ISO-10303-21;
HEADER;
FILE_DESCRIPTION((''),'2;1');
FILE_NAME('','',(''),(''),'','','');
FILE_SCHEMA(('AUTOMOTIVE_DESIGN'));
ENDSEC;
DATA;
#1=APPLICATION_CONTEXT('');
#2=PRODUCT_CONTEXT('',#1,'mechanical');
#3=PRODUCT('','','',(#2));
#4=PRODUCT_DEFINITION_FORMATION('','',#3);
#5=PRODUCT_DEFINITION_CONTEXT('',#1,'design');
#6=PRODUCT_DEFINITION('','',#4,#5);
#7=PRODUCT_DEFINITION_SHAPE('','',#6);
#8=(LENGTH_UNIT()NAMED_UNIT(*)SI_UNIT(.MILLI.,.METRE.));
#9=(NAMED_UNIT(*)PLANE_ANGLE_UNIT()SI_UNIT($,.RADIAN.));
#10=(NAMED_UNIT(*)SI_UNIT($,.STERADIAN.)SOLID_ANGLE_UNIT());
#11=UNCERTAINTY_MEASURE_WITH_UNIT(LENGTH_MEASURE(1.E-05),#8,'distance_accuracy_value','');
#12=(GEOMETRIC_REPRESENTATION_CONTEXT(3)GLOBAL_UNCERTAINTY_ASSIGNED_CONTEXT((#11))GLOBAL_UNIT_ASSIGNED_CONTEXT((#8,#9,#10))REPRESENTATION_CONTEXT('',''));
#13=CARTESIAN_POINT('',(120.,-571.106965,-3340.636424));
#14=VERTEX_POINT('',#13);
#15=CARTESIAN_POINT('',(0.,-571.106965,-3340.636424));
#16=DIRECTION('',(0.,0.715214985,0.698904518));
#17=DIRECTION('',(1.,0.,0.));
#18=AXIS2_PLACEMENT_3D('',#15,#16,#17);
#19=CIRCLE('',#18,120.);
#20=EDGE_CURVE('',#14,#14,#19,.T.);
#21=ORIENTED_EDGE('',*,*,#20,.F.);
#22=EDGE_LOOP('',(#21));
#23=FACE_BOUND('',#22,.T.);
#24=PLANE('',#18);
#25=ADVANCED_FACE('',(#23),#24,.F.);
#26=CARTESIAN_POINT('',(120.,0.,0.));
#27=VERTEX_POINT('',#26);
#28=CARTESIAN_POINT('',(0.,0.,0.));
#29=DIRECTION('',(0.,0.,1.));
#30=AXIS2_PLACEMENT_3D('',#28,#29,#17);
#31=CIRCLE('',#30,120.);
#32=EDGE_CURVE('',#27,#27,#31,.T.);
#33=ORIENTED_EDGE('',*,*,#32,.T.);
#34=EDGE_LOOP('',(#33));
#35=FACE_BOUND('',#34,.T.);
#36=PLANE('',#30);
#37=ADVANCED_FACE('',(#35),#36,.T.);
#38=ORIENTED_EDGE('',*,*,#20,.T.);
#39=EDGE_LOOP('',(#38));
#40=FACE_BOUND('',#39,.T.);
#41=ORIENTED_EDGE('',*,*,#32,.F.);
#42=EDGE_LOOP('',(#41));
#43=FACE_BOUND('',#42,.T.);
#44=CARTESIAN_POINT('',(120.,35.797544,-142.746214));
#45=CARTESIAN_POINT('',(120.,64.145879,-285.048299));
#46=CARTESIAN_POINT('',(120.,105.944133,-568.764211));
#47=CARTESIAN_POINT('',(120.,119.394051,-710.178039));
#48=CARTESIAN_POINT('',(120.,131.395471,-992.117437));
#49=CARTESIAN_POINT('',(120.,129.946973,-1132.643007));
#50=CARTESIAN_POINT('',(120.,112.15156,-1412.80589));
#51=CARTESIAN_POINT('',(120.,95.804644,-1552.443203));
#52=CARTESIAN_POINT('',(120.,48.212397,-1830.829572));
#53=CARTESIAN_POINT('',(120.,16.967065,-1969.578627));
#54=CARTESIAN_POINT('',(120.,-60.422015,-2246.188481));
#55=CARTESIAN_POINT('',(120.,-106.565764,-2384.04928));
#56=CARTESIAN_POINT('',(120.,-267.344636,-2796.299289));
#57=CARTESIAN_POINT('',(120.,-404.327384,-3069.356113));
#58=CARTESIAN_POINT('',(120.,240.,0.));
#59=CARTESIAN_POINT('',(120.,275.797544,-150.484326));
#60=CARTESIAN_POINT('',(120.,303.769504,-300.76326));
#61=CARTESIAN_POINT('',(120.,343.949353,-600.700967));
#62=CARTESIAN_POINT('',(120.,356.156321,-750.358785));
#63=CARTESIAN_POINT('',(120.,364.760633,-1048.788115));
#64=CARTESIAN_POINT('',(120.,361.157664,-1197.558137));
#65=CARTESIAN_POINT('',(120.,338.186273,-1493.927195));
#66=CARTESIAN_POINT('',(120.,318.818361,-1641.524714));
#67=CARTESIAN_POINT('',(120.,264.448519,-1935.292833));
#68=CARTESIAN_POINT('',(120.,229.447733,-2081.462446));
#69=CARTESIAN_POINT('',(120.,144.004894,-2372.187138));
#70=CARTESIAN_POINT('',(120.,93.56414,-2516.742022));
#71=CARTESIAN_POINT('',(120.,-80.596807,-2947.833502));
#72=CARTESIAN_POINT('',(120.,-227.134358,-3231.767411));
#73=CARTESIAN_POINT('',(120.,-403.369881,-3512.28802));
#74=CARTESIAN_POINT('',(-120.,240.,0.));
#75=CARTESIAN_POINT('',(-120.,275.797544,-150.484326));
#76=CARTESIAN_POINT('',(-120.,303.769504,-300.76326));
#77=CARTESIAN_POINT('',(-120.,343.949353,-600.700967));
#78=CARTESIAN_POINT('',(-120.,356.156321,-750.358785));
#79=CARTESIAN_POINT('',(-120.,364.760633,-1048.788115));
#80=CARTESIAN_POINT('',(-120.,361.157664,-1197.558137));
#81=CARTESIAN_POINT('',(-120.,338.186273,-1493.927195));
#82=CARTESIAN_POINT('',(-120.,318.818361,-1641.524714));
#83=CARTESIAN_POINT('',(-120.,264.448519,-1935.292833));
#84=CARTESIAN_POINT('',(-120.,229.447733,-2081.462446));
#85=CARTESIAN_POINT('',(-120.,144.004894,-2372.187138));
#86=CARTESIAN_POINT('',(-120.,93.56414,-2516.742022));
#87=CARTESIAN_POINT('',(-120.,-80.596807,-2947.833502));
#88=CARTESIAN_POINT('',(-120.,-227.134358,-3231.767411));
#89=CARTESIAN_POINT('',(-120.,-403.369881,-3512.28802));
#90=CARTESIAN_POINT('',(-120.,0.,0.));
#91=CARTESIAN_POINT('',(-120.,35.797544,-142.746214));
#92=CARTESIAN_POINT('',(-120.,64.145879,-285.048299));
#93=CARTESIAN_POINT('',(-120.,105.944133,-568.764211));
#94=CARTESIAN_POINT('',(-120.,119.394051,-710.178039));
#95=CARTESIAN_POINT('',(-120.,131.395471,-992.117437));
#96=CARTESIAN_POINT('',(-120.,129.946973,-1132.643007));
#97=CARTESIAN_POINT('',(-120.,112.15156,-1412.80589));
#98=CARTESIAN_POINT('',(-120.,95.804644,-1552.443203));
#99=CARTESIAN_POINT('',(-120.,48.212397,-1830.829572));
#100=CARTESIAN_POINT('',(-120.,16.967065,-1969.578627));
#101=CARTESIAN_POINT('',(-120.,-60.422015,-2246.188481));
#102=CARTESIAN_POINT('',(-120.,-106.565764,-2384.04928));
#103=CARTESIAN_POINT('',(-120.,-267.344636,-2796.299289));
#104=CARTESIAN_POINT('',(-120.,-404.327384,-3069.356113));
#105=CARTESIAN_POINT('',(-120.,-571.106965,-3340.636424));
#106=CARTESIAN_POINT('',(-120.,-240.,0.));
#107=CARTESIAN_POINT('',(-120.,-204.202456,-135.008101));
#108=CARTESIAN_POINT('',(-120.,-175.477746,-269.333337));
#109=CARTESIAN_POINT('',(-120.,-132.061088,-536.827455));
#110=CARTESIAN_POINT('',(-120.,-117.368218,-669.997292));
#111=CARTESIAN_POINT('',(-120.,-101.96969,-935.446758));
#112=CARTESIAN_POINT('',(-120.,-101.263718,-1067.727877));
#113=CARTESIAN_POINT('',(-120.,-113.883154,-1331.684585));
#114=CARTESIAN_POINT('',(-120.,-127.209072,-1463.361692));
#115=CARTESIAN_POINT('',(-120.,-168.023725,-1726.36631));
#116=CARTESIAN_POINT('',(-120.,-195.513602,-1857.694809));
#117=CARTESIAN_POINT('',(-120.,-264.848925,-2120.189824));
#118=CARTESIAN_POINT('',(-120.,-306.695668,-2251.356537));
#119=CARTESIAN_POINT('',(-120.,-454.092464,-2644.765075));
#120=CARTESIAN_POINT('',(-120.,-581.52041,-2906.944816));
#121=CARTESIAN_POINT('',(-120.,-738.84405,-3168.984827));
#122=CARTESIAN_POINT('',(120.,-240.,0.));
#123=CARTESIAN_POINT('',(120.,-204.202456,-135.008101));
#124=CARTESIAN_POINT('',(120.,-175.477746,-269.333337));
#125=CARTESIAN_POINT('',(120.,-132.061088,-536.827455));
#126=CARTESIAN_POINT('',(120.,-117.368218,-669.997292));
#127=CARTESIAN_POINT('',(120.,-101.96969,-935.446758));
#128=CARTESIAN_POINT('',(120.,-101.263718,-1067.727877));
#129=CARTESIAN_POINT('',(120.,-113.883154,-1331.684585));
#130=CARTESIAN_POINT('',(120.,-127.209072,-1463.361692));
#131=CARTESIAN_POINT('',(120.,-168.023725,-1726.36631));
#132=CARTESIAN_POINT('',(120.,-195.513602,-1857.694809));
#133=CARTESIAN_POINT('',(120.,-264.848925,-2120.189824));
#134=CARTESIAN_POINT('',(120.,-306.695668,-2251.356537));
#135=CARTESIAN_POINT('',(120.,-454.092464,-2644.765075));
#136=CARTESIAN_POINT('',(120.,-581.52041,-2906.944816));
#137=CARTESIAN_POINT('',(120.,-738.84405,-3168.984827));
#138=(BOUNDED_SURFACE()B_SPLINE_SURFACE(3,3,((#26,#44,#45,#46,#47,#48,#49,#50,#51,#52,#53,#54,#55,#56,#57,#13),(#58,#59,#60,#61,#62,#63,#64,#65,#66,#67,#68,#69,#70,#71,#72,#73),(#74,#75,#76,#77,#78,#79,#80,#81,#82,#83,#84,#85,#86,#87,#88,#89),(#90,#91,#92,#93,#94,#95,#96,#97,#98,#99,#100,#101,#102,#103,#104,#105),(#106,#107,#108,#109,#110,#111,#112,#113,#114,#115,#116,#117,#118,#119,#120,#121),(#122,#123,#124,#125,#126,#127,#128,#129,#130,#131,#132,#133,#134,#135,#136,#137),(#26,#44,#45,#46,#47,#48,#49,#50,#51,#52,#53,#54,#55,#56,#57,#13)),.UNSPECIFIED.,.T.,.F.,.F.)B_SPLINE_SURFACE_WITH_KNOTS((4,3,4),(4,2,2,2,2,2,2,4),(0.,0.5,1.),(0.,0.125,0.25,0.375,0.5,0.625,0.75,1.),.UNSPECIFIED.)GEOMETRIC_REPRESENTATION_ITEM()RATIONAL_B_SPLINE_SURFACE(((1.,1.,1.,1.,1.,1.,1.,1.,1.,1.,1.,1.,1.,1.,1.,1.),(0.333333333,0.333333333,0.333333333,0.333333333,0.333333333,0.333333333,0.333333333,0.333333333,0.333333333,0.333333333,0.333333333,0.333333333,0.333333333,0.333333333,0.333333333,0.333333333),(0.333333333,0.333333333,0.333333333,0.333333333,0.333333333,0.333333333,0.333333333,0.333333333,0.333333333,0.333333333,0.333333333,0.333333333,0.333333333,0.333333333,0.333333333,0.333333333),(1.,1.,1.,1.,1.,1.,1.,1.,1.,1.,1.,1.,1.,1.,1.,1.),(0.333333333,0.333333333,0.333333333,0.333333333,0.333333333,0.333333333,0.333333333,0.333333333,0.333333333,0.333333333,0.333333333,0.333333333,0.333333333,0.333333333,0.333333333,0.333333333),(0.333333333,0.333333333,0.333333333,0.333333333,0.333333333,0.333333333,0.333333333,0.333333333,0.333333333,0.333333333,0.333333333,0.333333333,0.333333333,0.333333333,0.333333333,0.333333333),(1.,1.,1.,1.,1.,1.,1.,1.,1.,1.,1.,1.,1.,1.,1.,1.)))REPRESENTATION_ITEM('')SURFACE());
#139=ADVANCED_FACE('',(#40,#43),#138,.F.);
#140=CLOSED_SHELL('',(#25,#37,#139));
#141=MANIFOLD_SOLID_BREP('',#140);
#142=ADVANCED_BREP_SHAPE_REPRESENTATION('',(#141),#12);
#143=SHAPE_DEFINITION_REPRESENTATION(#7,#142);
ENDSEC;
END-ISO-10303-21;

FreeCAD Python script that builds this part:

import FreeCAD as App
import Part
import Sketcher
from FreeCAD import Vector

doc = App.newDocument("Part")
body = doc.addObject("PartDesign::Body", "Body")

# Sketch on XY plane
sketch1 = body.newObject("Sketcher::SketchObject", "Sketch")
sketch1.AttachmentSupport = (doc.getObject("XY_Plane"), [""])
sketch1.MapMode = "FlatFace"
sketch1.addGeometry(Part.Circle(Vector(0, 0, 0), Vector(0, 0, 1), 120), False)
sketch1.addConstraint([
    Sketcher.Constraint("Coincident", 0, 3, -1, 1),
    Sketcher.Constraint("Diameter", 0, 240.0),
])

# Sketch on YZ plane
sketch2 = body.newObject("Sketcher::SketchObject", "Sketch001")
sketch2.AttachmentSupport = (doc.getObject("YZ_Plane"), [""])
sketch2.MapMode = "FlatFace"
sketch2.addGeometry(Part.BSplineCurve([Vector(0, 0, 0), Vector(429.570524, -1712.954563, 0), Vector(-571.106965, -3340.636424, 0)], [3, 3], [0, 1], False, 2, [1, 1, 1], False), False)
sketch2.addConstraint(Sketcher.Constraint("Block", 0))
doc.recompute()

additivepipe = body.newObject("PartDesign::AdditivePipe", "AdditivePipe")
additivepipe.Profile = sketch1
additivepipe.Spine = (sketch2, ["Edge1"])

doc.recompute()
